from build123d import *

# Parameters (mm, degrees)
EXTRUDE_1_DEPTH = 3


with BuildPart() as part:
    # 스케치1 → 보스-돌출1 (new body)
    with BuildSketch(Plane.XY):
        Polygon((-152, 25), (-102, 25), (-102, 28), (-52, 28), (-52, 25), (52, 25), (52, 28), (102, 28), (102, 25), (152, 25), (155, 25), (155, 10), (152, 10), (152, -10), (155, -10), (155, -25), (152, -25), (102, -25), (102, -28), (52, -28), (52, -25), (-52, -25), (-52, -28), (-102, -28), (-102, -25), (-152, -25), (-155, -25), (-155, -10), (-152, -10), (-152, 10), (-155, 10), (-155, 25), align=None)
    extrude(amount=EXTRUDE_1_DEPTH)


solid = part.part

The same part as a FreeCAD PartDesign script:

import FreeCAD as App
import Part
import Sketcher
Q = App.Units.Quantity


def add_polygon(sketch, points):
    """Adds a closed chain of lines whose ends are joined by coincident constraints."""
    first, n = sketch.GeometryCount, len(points)
    for a, b in zip(points, points[1:] + points[:1]):
        sketch.addGeometry(Part.LineSegment(App.Vector(*a, 0), App.Vector(*b, 0)), False)
    for i in range(n):
        sketch.addConstraint(Sketcher.Constraint("Coincident", first + i, 2, first + (i + 1) % n, 1))

doc = App.newDocument("Part")
body = doc.addObject("PartDesign::Body", "Body")

# Sketch on XY plane
sketch1 = doc.addObject("Sketcher::SketchObject", "Sketch")
body.addObject(sketch1)
sketch1.AttachmentSupport = (doc.XY_Plane, [""])
sketch1.MapMode = "FlatFace"
add_polygon(sketch1, [(-102, 25), (-155, 25), (-155, 10), (-152, 10), (-152, -10), (-155, -10), (-155, -25), (-102, -25), (-102, -28), (-52, -28), (-52, -25), (52, -25), (52, -28), (102, -28), (102, -25), (155, -25), (155, -10), (152, -10), (152, 10), (155, 10), (155, 25), (102, 25), (102, 28), (52, 28), (52, 25), (-52, 25), (-52, 28), (-102, 28)])  # lines 0-27
sketch1.addConstraint(Sketcher.Constraint("Horizontal", 0))
sketch1.addConstraint(Sketcher.Constraint("Vertical", 1))
sketch1.addConstraint(Sketcher.Constraint("Horizontal", 2))
sketch1.addConstraint(Sketcher.Constraint("Vertical", 3))
sketch1.addConstraint(Sketcher.Constraint("Horizontal", 4))
sketch1.addConstraint(Sketcher.Constraint("Vertical", 5))
sketch1.addConstraint(Sketcher.Constraint("Horizontal", 6))
sketch1.addConstraint(Sketcher.Constraint("Vertical", 7))
sketch1.addConstraint(Sketcher.Constraint("Horizontal", 8))
sketch1.addConstraint(Sketcher.Constraint("Vertical", 9))
sketch1.addConstraint(Sketcher.Constraint("Horizontal", 10))
sketch1.addConstraint(Sketcher.Constraint("Vertical", 11))
sketch1.addConstraint(Sketcher.Constraint("Horizontal", 12))
sketch1.addConstraint(Sketcher.Constraint("Vertical", 13))
sketch1.addConstraint(Sketcher.Constraint("Horizontal", 14))
sketch1.addConstraint(Sketcher.Constraint("Vertical", 15))
sketch1.addConstraint(Sketcher.Constraint("Horizontal", 16))
sketch1.addConstraint(Sketcher.Constraint("Vertical", 17))
sketch1.addConstraint(Sketcher.Constraint("Horizontal", 18))
sketch1.addConstraint(Sketcher.Constraint("Vertical", 19))
sketch1.addConstraint(Sketcher.Constraint("Horizontal", 20))
sketch1.addConstraint(Sketcher.Constraint("Vertical", 21))
sketch1.addConstraint(Sketcher.Constraint("Horizontal", 22))
sketch1.addConstraint(Sketcher.Constraint("Vertical", 23))
sketch1.addConstraint(Sketcher.Constraint("Horizontal", 24))
sketch1.addConstraint(Sketcher.Constraint("Vertical", 25))
sketch1.addConstraint(Sketcher.Constraint("Horizontal", 26))
sketch1.addConstraint(Sketcher.Constraint("Vertical", 27))
sketch1.addConstraint(Sketcher.Constraint("Symmetric", 0, 2, 14, 2, -1, 1))
sketch1.addConstraint(Sketcher.Constraint("Symmetric", 2, 2, 16, 2, -1, 1))
sketch1.addConstraint(Sketcher.Constraint("Symmetric", 4, 2, 18, 2, -1, 1))
sketch1.addConstraint(Sketcher.Constraint("Symmetric", 6, 2, 20, 2, -1, 1))
sketch1.addConstraint(Sketcher.Constraint("Symmetric", 8, 2, 22, 2, -1, 1))
sketch1.addConstraint(Sketcher.Constraint("Symmetric", 10, 2, 24, 2, -1, 1))
sketch1.addConstraint(Sketcher.Constraint("Symmetric", 12, 2, 26, 2, -1, 1))
sketch1.addConstraint(Sketcher.Constraint("Symmetric", 8, 2, 11, 2, -2))
sketch1.addConstraint(Sketcher.Constraint("Symmetric", 6, 2, 13, 2, -2))
sketch1.addConstraint(Sketcher.Constraint("Symmetric", 4, 2, 15, 2, -2))
sketch1.addConstraint(Sketcher.Constraint("Horizontal", 6, 2, 9, 2))
sketch1.addConstraint(Sketcher.Constraint("Equal", 18, 7))
sketch1.addConstraint(Sketcher.Constraint("DistanceX", 0, 2, 0, 1, Q("53 mm")))
sketch1.addConstraint(Sketcher.Constraint("DistanceX", 2, 1, 2, 2, Q("3 mm")))
sketch1.addConstraint(Sketcher.Constraint("DistanceX", 8, 1, 8, 2, Q("50 mm")))
sketch1.addConstraint(Sketcher.Constraint("DistanceX", 10, 1, 10, 2, Q("104 mm")))
sketch1.addConstraint(Sketcher.Constraint("DistanceY", 1, 2, 1, 1, Q("15 mm")))
sketch1.addConstraint(Sketcher.Constraint("DistanceY", 3, 2, 3, 1, Q("20 mm")))
pad1 = doc.addObject("PartDesign::Pad", "Pad")
body.addObject(pad1)
pad1.Profile = sketch1
pad1.Length = 3

doc.recompute()
